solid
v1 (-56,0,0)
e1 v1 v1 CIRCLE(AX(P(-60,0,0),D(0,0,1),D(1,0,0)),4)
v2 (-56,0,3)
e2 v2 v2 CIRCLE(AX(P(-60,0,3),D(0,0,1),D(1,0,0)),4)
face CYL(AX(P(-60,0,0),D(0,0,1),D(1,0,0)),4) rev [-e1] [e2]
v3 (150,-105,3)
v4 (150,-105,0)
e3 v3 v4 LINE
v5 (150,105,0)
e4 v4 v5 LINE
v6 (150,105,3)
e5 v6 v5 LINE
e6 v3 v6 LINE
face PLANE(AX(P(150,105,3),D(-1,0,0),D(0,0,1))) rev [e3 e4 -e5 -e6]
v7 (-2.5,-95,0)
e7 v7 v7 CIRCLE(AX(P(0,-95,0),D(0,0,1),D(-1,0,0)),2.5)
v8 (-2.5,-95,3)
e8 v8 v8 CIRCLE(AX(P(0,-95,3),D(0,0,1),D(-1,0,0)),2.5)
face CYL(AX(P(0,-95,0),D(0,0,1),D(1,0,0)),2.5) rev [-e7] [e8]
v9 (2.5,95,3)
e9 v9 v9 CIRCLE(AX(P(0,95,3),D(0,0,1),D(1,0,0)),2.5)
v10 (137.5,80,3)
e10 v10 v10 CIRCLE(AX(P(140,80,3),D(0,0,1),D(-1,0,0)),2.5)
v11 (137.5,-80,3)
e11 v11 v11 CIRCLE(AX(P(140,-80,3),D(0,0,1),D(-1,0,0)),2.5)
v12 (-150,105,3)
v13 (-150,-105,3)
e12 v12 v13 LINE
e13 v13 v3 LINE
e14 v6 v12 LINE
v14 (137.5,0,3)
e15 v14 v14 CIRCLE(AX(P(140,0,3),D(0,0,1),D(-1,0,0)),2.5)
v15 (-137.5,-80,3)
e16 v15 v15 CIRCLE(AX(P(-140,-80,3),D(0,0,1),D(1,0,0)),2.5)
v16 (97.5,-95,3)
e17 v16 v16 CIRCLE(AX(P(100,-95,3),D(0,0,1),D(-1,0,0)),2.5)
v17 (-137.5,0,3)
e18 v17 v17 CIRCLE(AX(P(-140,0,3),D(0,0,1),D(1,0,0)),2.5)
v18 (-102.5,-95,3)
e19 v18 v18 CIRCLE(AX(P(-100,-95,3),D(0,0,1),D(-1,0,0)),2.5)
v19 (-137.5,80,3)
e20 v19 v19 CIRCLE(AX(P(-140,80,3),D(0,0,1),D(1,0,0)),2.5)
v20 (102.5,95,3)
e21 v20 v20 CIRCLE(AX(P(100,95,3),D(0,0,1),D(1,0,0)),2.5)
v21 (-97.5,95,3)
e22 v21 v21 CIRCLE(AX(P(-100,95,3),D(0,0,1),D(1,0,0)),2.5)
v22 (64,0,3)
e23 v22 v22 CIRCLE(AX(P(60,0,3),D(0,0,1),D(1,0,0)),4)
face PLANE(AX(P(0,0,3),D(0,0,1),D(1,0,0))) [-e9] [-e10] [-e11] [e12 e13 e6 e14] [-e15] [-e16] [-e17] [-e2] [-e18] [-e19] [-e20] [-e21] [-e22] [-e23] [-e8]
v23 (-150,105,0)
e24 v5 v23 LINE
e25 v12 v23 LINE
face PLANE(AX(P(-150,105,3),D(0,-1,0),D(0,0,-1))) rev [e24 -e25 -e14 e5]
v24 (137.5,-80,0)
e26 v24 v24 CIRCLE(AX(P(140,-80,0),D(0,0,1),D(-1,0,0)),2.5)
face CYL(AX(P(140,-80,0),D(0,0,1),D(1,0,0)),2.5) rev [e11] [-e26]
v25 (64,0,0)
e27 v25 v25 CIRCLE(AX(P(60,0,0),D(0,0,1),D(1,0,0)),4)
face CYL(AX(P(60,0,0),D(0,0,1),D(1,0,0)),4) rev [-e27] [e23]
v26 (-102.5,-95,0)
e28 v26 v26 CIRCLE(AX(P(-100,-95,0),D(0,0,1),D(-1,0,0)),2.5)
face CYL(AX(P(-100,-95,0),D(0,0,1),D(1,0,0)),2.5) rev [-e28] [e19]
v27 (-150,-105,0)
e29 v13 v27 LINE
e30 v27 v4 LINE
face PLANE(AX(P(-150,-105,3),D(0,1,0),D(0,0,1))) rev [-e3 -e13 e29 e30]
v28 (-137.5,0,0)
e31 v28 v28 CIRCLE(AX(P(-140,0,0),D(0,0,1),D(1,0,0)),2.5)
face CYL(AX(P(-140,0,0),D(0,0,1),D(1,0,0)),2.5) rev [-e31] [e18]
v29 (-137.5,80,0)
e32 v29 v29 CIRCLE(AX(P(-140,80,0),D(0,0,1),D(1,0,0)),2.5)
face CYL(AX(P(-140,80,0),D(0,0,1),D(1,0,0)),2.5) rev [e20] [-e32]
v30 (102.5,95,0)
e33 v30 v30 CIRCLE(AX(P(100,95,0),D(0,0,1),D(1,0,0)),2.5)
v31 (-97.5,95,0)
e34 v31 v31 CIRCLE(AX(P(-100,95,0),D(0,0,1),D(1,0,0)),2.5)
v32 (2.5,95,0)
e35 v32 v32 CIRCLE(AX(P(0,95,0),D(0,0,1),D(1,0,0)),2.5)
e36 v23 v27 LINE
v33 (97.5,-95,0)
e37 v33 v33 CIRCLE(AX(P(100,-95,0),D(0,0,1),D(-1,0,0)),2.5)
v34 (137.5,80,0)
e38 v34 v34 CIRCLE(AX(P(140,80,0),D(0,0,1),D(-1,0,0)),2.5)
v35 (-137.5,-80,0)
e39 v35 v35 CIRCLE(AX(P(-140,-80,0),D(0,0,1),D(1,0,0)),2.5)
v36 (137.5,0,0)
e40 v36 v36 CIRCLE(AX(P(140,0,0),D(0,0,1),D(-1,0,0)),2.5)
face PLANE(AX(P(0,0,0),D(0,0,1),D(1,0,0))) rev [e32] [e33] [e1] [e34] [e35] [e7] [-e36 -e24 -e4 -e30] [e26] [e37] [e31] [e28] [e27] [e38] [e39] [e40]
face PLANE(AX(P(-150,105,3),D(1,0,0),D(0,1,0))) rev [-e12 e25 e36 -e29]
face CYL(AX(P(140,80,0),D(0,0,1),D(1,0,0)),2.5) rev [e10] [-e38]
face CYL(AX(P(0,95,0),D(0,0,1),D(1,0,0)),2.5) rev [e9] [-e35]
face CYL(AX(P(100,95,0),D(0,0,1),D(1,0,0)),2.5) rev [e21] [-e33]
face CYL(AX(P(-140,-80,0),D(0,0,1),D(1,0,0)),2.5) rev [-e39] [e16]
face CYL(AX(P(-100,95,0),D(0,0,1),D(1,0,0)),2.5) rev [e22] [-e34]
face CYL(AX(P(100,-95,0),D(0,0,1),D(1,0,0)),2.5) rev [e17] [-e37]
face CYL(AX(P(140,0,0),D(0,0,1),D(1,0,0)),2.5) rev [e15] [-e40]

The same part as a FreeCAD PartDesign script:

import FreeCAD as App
import Part
import Sketcher

V = App.Vector


def add_polygon(sketch, points):
    """Adds a closed chain of lines whose ends are joined by coincident constraints."""
    first, n = sketch.GeometryCount, len(points)
    for a, b in zip(points, points[1:] + points[:1]):
        sketch.addGeometry(Part.LineSegment(App.Vector(*a, 0), App.Vector(*b, 0)), False)
    for i in range(n):
        sketch.addConstraint(Sketcher.Constraint("Coincident", first + i, 2, first + (i + 1) % n, 1))

doc = App.newDocument("Part")
body = doc.addObject("PartDesign::Body", "Body")

sketch1 = body.newObject("Sketcher::SketchObject", "Sketch")
sketch1.AttachmentSupport = (doc.getObject("XY_Plane"), [""])
sketch1.MapMode = "FlatFace"
add_polygon(sketch1, [(-150, 105), (-150, -105), (150, -105), (150, 105)])
sketch1.addConstraint(Sketcher.Constraint("Vertical", 0))
sketch1.addConstraint(Sketcher.Constraint("Horizontal", 1))
sketch1.addConstraint(Sketcher.Constraint("Vertical", 2))
sketch1.addConstraint(Sketcher.Constraint("Horizontal", 3))
sketch1.addConstraint(Sketcher.Constraint("Symmetric", 0, 2, 2, 2, -1, 1))
sketch1.addConstraint(Sketcher.Constraint("DistanceX", 1, 1, 1, 2, 300.0))
sketch1.addConstraint(Sketcher.Constraint("DistanceY", 0, 2, 0, 1, 210.0))
pad1 = body.newObject("PartDesign::Pad", "Pad")
pad1.Profile = sketch1
pad1.Length = 3

sketch2 = body.newObject("Sketcher::SketchObject", "Sketch001")
sketch2.AttachmentSupport = (doc.getObject("XY_Plane"), [""])
sketch2.MapMode = "FlatFace"
sketch2.AttachmentOffset = App.Placement(V(0, 0, 3), App.Rotation())
sketch2.addGeometry(Part.Circle(V(0, 95, 0), V(0, 0, 1), 2.5), False)
sketch2.addGeometry(Part.Circle(V(-140, 0, 0), V(0, 0, 1), 2.5), False)
sketch2.addGeometry(Part.Circle(V(100, 95, 0), V(0, 0, 1), 2.5), False)
sketch2.addGeometry(Part.Circle(V(-100, 95, 0), V(0, 0, 1), 2.5), False)
sketch2.addGeometry(Part.Circle(V(-140, 80, 0), V(0, 0, 1), 2.5), False)
sketch2.addGeometry(Part.Circle(V(-140, -80, 0), V(0, 0, 1), 2.5), False)
sketch2.addGeometry(Part.Circle(V(100, -95, 0), V(0, 0, 1), 2.5), False)
sketch2.addGeometry(Part.Circle(V(-100, -95, 0), V(0, 0, 1), 2.5), False)
sketch2.addGeometry(Part.Circle(V(0, -95, 0), V(0, 0, 1), 2.5), False)
sketch2.addGeometry(Part.Circle(V(140, -80, 0), V(0, 0, 1), 2.5), False)
sketch2.addGeometry(Part.Circle(V(140, 80, 0), V(0, 0, 1), 2.5), False)
sketch2.addGeometry(Part.Circle(V(140, 0, 0), V(0, 0, 1), 2.5), False)
sketch2.addConstraint(Sketcher.Constraint("Equal", 0, 1))
sketch2.addConstraint(Sketcher.Constraint("Equal", 1, 2))
sketch2.addConstraint(Sketcher.Constraint("Equal", 2, 3))
sketch2.addConstraint(Sketcher.Constraint("Equal", 3, 4))
sketch2.addConstraint(Sketcher.Constraint("Equal", 4, 5))
sketch2.addConstraint(Sketcher.Constraint("Equal", 5, 6))
sketch2.addConstraint(Sketcher.Constraint("Equal", 6, 7))
sketch2.addConstraint(Sketcher.Constraint("Equal", 7, 8))
sketch2.addConstraint(Sketcher.Constraint("Equal", 8, 9))
sketch2.addConstraint(Sketcher.Constraint("Equal", 9, 10))
sketch2.addConstraint(Sketcher.Constraint("Equal", 10, 11))
sketch2.addConstraint(Sketcher.Constraint("Symmetric", 3, 3, 6, 3, -1, 1))
sketch2.addConstraint(Sketcher.Constraint("Symmetric", 2, 3, 7, 3, -1, 1))
sketch2.addConstraint(Sketcher.Constraint("Symmetric", 0, 3, 8, 3, -1, 1))
sketch2.addConstraint(Sketcher.Constraint("Symmetric", 4, 3, 9, 3, -1, 1))
sketch2.addConstraint(Sketcher.Constraint("Symmetric", 5, 3, 10, 3, -1, 1))
sketch2.addConstraint(Sketcher.Constraint("Symmetric", 1, 3, 11, 3, -1, 1))
sketch2.addConstraint(Sketcher.Constraint("Symmetric", 2, 3, 3, 3, -2))
sketch2.addConstraint(Sketcher.Constraint("Symmetric", 5, 3, 9, 3, -2))
sketch2.addConstraint(Sketcher.Constraint("PointOnObject", 0, 3, -2))
sketch2.addConstraint(Sketcher.Constraint("PointOnObject", 1, 3, -1))
sketch2.addConstraint(Sketcher.Constraint("Horizontal", 0, 3, 2, 3))
sketch2.addConstraint(Sketcher.Constraint("Vertical", 1, 3, 4, 3))
sketch2.addConstraint(Sketcher.Constraint("Diameter", 0, 5.0))
sketch2.addConstraint(Sketcher.Constraint("DistanceY", -1, 1, 0, 3, 95.0))
sketch2.addConstraint(Sketcher.Constraint("DistanceX", 1, 3, -1, 1, 140.0))
sketch2.addConstraint(Sketcher.Constraint("DistanceX", -1, 1, 2, 3, 100.0))
sketch2.addConstraint(Sketcher.Constraint("DistanceY", -1, 1, 4, 3, 80.0))
pocket1 = body.newObject("PartDesign::Pocket", "Pocket")
pocket1.Profile = sketch2
pocket1.Type = "ThroughAll"

sketch3 = body.newObject("Sketcher::SketchObject", "Sketch002")
sketch3.AttachmentSupport = (doc.getObject("XY_Plane"), [""])
sketch3.MapMode = "FlatFace"
sketch3.AttachmentOffset = App.Placement(V(0, 0, 3), App.Rotation())
sketch3.addGeometry(Part.Circle(V(-60, 0, 0), V(0, 0, 1), 4), False)
sketch3.addGeometry(Part.Circle(V(60, 0, 0), V(0, 0, 1), 4), False)
sketch3.addConstraint(Sketcher.Constraint("Equal", 0, 1))
sketch3.addConstraint(Sketcher.Constraint("Symmetric", 0, 3, 1, 3, -1, 1))
sketch3.addConstraint(Sketcher.Constraint("PointOnObject", 0, 3, -1))
sketch3.addConstraint(Sketcher.Constraint("Diameter", 0, 8.0))
sketch3.addConstraint(Sketcher.Constraint("DistanceX", 0, 3, -1, 1, 60.0))
pocket2 = body.newObject("PartDesign::Pocket", "Pocket001")
pocket2.Profile = sketch3
pocket2.Type = "ThroughAll"

doc.recompute()
